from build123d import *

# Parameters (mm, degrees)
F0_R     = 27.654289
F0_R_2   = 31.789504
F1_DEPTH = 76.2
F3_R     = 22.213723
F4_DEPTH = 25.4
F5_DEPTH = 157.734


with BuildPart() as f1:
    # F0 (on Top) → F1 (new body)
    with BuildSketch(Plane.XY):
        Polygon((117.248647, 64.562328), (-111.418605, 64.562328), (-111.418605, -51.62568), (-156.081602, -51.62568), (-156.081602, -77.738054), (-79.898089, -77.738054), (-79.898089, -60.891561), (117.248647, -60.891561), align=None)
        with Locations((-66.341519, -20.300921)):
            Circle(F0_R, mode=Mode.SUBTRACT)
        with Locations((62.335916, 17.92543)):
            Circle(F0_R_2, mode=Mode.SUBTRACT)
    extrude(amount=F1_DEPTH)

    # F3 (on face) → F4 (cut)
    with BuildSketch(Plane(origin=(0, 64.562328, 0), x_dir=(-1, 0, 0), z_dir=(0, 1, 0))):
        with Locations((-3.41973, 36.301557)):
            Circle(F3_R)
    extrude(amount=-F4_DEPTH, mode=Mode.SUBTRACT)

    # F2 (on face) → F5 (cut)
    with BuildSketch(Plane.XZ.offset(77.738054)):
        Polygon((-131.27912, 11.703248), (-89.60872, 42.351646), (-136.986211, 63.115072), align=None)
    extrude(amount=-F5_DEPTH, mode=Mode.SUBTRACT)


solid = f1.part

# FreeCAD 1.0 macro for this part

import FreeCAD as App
import Part
import Sketcher
Q = App.Units.Quantity

doc = App.newDocument("Part")
body = doc.addObject("PartDesign::Body", "Body")

# Sketch on XY plane
sketch1 = body.newObject("Sketcher::SketchObject", "Sketch")
sketch1.AttachmentSupport = (doc.getObject("XY_Plane"), [""])
sketch1.MapMode = "FlatFace"
sketch1.addGeometry(Part.LineSegment(App.Vector(117, 65, 0), App.Vector(-111, 65, 0)), False)
sketch1.addGeometry(Part.LineSegment(App.Vector(-111, 65, 0), App.Vector(-111, -52, 0)), False)
sketch1.addGeometry(Part.LineSegment(App.Vector(-111, -52, 0), App.Vector(-156, -52, 0)), False)
sketch1.addGeometry(Part.LineSegment(App.Vector(-156, -52, 0), App.Vector(-156, -78, 0)), False)
sketch1.addGeometry(Part.LineSegment(App.Vector(-156, -78, 0), App.Vector(-80, -78, 0)), False)
sketch1.addGeometry(Part.LineSegment(App.Vector(-80, -78, 0), App.Vector(-80, -61, 0)), False)
sketch1.addGeometry(Part.LineSegment(App.Vector(-80, -61, 0), App.Vector(117, -61, 0)), False)
sketch1.addGeometry(Part.LineSegment(App.Vector(117, -61, 0), App.Vector(117, 65, 0)), False)
sketch1.addGeometry(Part.Circle(App.Vector(-66, -20, 0), App.Vector(0, 0, 1), 28), False)
sketch1.addGeometry(Part.Circle(App.Vector(62, 18, 0), App.Vector(0, 0, 1), 32), False)
sketch1.addConstraint(Sketcher.Constraint("Coincident", 0, 2, 1, 1))
sketch1.addConstraint(Sketcher.Constraint("Coincident", 1, 2, 2, 1))
sketch1.addConstraint(Sketcher.Constraint("Coincident", 2, 2, 3, 1))
sketch1.addConstraint(Sketcher.Constraint("Coincident", 3, 2, 4, 1))
sketch1.addConstraint(Sketcher.Constraint("Coincident", 4, 2, 5, 1))
sketch1.addConstraint(Sketcher.Constraint("Coincident", 5, 2, 6, 1))
sketch1.addConstraint(Sketcher.Constraint("Coincident", 6, 2, 7, 1))
sketch1.addConstraint(Sketcher.Constraint("Coincident", 7, 2, 0, 1))
sketch1.addConstraint(Sketcher.Constraint("Horizontal", 0))
sketch1.addConstraint(Sketcher.Constraint("Vertical", 1))
sketch1.addConstraint(Sketcher.Constraint("Horizontal", 2))
sketch1.addConstraint(Sketcher.Constraint("Vertical", 3))
sketch1.addConstraint(Sketcher.Constraint("Horizontal", 4))
sketch1.addConstraint(Sketcher.Constraint("Vertical", 5))
sketch1.addConstraint(Sketcher.Constraint("Horizontal", 6))
sketch1.addConstraint(Sketcher.Constraint("Vertical", 7))
sketch1.addConstraint(Sketcher.Constraint("Diameter", 9, 63.579008))
sketch1.addConstraint(Sketcher.Constraint("Diameter", 8, 55.308578))
sketch1.addConstraint(Sketcher.Constraint("DistanceY", 7, 1, 7, 2, 125.453889))
sketch1.addConstraint(Sketcher.Constraint("DistanceX", 2, 2, -1, 1, 156.081602))
sketch1.addConstraint(Sketcher.Constraint("DistanceX", 0, 2, 0, 1, 228.667252))
sketch1.addConstraint(Sketcher.Constraint("DistanceX", 2, 2, 2, 1, 44.662997))
sketch1.addConstraint(Sketcher.Constraint("DistanceX", 4, 1, 4, 2, 76.183513))
sketch1.addConstraint(Sketcher.Constraint("DistanceY", 1, 2, 1, 1, 116.188008))
sketch1.addConstraint(Sketcher.Constraint("DistanceY", 3, 2, 3, 1, 26.112374))
sketch1.addConstraint(Sketcher.Constraint("DistanceX", 8, 3, -1, 1, 66.341519))
sketch1.addConstraint(Sketcher.Constraint("DistanceY", 8, 3, -1, 1, 20.300921))
sketch1.addConstraint(Sketcher.Constraint("DistanceY", -1, 1, 9, 3, 17.92543))
sketch1.addConstraint(Sketcher.Constraint("DistanceY", 1, 2, -1, 1, 51.62568))
sketch1.addConstraint(Sketcher.Constraint("DistanceX", 0, 2, 9, 3, 173.754521))
pad1 = body.newObject("PartDesign::Pad", "Pad")
pad1.Profile = sketch1
pad1.Length = Q("3 in")

# Sketch on XZ plane
sketch2 = body.newObject("Sketcher::SketchObject", "Sketch001")
sketch2.AttachmentSupport = (doc.getObject("XZ_Plane"), [""])
sketch2.MapMode = "FlatFace"
sketch2.AttachmentOffset = App.Placement(App.Vector(0, 0, -64.562328), App.Rotation())
sketch2.addGeometry(Part.Circle(App.Vector(3, 36, 0), App.Vector(0, 0, 1), 22), False)
sketch2.addConstraint(Sketcher.Constraint("Diameter", 0, 44.427446))
sketch2.addConstraint(Sketcher.Constraint("DistanceX", -1, 1, 0, 3, 3.41973))
sketch2.addConstraint(Sketcher.Constraint("DistanceY", -1, 1, 0, 3, 36.301557))
pocket1 = body.newObject("PartDesign::Pocket", "Pocket")
pocket1.Profile = sketch2
pocket1.Length = Q("1 in")
pocket1.Reversed = True

# Sketch on XZ plane
sketch3 = body.newObject("Sketcher::SketchObject", "Sketch002")
sketch3.AttachmentSupport = (doc.getObject("XZ_Plane"), [""])
sketch3.MapMode = "FlatFace"
sketch3.AttachmentOffset = App.Placement(App.Vector(0, 0, 77.738054), App.Rotation())
sketch3.addGeometry(Part.LineSegment(App.Vector(-131, 12, 0), App.Vector(-90, 42, 0)), False)
sketch3.addGeometry(Part.LineSegment(App.Vector(-90, 42, 0), App.Vector(-137, 63, 0)), False)
sketch3.addGeometry(Part.LineSegment(App.Vector(-137, 63, 0), App.Vector(-131, 12, 0)), False)
sketch3.addConstraint(Sketcher.Constraint("Coincident", 0, 2, 1, 1))
sketch3.addConstraint(Sketcher.Constraint("Coincident", 1, 2, 2, 1))
sketch3.addConstraint(Sketcher.Constraint("Coincident", 2, 2, 0, 1))
sketch3.addConstraint(Sketcher.Constraint("Equal", 0, 1))
sketch3.addConstraint(Sketcher.Constraint("Equal", 1, 2))
sketch3.addConstraint(Sketcher.Constraint("DistanceX", 2, 2, 0, 2, 41.6704))
sketch3.addConstraint(Sketcher.Constraint("DistanceY", 2, 2, 0, 2, 30.648398))
sketch3.addConstraint(Sketcher.Constraint("DistanceX", 0, 2, -1, 1, 89.60872))
sketch3.addConstraint(Sketcher.Constraint("DistanceY", -1, 1, 1, 2, 63.115072))
pocket2 = body.newObject("PartDesign::Pocket", "Pocket001")
pocket2.Profile = sketch3
pocket2.Length = Q("6.21 in")

doc.recompute()
